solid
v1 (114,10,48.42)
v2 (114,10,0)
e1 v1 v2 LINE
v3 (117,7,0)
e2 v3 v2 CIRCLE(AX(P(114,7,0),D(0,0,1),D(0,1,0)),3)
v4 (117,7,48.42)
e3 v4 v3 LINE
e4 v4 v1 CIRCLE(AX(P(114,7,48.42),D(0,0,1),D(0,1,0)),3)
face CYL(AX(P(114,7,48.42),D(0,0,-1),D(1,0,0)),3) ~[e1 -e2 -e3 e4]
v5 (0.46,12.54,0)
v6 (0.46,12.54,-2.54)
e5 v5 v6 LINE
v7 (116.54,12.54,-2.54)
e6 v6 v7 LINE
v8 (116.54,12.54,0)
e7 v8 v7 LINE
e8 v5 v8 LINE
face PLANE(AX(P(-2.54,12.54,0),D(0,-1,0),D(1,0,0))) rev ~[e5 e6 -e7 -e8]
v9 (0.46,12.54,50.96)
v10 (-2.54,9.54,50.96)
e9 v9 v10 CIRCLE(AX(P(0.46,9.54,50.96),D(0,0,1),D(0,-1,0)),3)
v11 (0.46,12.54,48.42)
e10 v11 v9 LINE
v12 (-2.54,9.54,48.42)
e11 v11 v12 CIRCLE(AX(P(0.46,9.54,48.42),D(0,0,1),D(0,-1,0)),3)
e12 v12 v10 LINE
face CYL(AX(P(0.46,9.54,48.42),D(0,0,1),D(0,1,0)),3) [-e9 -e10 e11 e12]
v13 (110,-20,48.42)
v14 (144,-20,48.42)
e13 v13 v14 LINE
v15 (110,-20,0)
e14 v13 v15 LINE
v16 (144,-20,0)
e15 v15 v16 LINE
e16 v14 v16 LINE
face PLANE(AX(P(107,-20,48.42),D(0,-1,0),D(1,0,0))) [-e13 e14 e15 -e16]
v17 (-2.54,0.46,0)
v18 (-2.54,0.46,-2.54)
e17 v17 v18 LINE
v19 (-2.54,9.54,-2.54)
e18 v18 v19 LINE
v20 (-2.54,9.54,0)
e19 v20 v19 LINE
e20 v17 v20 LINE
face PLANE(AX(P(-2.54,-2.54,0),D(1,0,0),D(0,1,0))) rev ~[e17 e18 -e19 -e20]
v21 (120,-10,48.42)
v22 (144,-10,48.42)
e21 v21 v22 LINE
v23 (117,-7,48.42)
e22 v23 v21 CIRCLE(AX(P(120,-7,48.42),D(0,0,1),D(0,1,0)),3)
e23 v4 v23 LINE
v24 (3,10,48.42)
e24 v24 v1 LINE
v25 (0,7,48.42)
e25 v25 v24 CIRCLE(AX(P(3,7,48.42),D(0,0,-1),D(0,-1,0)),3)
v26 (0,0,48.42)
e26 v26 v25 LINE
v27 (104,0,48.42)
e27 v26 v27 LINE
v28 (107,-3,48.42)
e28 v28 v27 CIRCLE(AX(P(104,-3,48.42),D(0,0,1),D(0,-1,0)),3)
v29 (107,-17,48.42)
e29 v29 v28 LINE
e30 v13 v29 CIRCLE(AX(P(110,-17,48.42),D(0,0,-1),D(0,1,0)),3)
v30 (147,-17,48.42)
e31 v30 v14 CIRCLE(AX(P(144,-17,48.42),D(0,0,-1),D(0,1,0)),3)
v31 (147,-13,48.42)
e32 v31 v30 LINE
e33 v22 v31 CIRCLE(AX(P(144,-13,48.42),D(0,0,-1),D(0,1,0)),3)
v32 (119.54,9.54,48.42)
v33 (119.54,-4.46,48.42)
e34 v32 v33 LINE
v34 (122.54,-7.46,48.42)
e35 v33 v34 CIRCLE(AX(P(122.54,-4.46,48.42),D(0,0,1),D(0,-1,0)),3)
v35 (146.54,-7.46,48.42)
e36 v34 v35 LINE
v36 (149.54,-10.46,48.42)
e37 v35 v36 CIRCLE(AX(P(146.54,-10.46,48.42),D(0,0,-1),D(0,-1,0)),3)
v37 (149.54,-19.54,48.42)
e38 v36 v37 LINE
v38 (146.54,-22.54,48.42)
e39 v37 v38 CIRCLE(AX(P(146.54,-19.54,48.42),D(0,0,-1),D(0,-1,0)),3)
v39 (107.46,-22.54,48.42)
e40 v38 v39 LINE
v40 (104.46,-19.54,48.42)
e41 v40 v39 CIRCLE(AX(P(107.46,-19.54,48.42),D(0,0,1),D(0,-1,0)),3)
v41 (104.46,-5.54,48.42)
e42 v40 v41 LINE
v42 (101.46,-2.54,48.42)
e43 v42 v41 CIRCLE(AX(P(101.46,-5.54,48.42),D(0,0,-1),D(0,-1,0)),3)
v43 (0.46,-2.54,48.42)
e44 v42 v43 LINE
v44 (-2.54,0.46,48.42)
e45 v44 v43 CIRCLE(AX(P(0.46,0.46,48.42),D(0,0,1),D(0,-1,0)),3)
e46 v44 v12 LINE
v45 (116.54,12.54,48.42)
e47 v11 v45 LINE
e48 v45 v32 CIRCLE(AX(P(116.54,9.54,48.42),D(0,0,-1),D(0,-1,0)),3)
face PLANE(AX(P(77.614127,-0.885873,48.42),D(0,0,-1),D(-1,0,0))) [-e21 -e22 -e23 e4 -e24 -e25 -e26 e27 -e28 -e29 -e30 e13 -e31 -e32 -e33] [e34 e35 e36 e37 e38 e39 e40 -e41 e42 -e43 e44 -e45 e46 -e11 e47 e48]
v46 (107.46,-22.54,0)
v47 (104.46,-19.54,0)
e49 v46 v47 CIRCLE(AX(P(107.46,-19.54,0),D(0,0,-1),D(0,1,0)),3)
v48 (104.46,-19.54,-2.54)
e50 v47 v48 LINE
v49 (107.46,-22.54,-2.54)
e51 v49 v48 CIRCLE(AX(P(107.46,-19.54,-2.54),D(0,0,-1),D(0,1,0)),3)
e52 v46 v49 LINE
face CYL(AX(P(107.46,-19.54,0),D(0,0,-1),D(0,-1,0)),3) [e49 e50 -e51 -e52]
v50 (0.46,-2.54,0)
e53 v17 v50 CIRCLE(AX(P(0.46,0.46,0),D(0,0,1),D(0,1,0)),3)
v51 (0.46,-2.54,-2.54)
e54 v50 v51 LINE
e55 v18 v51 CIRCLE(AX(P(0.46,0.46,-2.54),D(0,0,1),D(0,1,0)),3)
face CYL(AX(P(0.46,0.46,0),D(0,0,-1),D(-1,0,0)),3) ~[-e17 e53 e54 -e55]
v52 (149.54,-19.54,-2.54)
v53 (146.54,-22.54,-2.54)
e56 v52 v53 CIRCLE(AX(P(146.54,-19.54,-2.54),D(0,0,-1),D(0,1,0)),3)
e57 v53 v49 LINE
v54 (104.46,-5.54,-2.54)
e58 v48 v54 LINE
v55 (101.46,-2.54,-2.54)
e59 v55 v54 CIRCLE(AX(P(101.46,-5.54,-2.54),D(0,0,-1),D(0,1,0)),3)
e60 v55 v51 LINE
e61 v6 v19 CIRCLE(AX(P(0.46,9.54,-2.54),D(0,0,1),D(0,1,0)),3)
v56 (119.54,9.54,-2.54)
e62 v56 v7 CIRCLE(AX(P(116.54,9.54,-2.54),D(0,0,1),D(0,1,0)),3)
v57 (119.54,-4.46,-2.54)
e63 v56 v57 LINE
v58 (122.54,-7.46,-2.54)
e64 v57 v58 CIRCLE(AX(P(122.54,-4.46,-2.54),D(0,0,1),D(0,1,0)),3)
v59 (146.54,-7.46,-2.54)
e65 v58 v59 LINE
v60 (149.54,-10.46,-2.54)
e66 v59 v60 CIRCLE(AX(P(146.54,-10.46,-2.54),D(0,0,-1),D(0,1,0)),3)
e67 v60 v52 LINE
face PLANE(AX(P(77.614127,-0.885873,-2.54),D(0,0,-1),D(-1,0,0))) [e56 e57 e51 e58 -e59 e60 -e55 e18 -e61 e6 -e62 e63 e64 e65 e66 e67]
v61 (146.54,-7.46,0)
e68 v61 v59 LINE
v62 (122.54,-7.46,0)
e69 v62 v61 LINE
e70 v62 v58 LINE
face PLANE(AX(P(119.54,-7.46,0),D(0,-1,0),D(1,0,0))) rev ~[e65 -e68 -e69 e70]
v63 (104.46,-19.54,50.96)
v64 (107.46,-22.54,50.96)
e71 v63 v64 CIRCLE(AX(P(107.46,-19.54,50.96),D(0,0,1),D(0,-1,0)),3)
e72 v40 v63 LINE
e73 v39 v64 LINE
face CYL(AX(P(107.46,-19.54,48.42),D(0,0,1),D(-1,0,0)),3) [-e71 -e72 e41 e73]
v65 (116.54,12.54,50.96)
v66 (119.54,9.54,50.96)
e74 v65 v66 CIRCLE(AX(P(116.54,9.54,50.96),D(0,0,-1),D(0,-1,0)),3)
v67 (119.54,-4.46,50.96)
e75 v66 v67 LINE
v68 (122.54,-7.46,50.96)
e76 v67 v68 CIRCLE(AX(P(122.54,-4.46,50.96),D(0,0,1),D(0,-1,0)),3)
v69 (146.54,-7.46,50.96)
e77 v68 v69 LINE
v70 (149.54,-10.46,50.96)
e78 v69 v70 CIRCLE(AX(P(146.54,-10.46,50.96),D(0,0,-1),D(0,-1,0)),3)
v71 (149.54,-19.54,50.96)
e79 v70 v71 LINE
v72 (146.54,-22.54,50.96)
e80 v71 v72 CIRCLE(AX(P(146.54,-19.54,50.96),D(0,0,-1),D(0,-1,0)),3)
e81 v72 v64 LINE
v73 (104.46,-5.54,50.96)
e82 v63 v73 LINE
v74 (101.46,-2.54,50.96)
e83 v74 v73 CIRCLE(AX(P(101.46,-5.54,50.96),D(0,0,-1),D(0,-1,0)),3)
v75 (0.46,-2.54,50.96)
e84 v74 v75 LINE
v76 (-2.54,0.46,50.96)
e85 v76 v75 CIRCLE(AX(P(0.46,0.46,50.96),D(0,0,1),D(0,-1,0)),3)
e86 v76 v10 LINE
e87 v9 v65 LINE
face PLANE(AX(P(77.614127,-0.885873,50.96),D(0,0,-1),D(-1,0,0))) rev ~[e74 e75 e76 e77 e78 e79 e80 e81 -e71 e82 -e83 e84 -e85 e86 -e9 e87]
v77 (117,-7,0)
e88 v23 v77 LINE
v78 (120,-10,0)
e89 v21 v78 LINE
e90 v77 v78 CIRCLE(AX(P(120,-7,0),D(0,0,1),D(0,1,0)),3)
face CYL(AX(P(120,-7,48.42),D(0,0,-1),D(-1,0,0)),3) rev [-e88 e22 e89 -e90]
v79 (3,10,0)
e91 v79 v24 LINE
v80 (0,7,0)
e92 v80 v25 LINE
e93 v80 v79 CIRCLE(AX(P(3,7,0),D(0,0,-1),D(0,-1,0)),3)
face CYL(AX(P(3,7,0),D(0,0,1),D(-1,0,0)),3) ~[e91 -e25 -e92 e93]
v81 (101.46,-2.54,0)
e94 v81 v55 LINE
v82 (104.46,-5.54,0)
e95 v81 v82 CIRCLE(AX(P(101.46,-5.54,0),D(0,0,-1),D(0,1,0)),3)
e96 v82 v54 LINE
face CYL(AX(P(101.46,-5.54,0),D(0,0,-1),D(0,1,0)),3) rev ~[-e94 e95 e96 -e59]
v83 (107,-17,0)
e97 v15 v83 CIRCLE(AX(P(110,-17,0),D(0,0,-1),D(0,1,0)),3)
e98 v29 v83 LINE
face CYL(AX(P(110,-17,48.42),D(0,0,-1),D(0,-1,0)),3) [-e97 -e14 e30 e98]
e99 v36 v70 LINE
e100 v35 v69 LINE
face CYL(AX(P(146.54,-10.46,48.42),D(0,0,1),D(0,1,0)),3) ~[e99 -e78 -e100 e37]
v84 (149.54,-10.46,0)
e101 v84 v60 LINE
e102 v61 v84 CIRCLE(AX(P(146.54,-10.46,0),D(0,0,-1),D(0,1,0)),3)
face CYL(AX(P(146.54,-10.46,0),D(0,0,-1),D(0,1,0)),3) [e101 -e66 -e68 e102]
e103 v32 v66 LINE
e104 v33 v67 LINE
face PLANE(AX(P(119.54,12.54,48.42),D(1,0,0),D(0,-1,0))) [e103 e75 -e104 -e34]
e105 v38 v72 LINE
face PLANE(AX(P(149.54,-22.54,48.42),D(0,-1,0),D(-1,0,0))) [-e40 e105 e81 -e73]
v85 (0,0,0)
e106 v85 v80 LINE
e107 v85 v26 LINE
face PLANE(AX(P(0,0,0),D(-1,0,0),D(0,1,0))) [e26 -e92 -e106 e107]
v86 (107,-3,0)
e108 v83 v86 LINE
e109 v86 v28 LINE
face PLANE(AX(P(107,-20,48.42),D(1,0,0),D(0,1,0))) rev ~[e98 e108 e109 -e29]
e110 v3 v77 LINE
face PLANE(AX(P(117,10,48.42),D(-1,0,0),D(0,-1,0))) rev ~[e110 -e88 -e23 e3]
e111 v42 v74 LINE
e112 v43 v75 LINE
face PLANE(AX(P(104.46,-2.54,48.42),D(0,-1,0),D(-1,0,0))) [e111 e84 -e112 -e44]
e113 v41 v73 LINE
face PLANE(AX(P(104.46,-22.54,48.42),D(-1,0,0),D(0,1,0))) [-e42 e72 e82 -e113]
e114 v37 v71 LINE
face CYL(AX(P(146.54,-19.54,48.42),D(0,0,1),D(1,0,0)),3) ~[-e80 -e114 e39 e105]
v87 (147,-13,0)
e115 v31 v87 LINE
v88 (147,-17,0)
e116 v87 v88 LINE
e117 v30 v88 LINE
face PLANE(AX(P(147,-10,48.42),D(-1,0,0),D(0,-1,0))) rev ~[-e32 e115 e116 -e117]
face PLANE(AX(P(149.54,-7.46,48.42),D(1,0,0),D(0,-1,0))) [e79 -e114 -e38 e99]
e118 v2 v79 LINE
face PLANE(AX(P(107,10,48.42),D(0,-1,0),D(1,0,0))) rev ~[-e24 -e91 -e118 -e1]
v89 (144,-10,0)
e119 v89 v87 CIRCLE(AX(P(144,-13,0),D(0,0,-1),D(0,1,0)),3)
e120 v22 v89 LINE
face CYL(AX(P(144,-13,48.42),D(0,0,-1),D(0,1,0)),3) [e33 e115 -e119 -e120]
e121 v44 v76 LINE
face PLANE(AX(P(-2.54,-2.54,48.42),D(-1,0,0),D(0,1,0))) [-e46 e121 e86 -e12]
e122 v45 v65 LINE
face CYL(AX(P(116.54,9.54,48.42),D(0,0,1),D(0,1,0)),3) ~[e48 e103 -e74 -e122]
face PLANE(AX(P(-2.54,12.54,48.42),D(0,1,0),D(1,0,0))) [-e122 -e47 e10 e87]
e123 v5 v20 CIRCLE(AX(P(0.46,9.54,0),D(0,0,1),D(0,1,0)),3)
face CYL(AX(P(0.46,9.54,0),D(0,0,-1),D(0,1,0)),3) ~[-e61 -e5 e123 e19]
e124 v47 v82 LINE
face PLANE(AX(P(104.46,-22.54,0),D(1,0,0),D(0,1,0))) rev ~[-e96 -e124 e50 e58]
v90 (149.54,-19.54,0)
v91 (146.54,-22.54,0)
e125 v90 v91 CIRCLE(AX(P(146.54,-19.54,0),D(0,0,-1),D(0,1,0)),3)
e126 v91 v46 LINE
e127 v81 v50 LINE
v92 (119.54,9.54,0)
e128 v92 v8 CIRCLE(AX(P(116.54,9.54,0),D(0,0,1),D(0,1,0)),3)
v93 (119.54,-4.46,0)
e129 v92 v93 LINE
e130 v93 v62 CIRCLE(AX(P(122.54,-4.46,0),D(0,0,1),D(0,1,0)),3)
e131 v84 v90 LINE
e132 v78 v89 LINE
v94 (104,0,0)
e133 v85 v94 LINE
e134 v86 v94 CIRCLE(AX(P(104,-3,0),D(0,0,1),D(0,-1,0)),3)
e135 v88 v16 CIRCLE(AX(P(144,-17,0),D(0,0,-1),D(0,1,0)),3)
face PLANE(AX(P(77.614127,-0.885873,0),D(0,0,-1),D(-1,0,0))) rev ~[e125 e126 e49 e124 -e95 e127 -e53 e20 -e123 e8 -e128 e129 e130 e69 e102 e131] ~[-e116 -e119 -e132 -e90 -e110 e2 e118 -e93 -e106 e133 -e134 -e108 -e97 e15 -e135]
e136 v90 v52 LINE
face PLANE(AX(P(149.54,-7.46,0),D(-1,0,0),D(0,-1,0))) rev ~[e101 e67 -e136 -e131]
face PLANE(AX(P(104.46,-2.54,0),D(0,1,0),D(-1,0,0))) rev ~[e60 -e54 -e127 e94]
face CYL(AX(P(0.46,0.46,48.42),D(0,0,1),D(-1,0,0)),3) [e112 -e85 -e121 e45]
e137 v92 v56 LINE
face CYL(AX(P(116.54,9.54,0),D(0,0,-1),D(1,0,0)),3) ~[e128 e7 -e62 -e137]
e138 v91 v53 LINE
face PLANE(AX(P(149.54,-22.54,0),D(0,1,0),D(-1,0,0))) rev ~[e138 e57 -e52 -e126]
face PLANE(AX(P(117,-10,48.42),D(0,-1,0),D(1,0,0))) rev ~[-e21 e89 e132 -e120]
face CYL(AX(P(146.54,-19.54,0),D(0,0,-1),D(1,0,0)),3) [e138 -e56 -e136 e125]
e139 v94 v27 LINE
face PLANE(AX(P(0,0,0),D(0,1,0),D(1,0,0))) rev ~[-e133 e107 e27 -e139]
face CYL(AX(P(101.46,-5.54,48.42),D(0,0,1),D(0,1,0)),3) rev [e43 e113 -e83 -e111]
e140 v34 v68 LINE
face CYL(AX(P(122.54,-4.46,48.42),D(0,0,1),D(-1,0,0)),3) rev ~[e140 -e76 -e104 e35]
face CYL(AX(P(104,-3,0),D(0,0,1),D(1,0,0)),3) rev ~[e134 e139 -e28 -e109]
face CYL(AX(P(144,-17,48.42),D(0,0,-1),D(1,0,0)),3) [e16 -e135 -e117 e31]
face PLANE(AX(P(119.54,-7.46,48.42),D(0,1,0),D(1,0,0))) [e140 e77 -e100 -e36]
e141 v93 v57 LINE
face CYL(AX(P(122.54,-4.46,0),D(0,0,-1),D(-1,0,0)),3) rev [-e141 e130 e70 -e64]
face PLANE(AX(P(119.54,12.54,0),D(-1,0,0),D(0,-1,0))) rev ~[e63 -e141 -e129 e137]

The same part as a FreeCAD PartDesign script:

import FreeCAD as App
import Part
import Sketcher
from FreeCAD import Vector


def edges_at(feature, points):
    """Names of the edges that pass closest to the given points."""
    edges = feature.Shape.Edges
    near = lambda p: min(range(len(edges)), key=lambda i: edges[i].distToShape(Part.Vertex(*p))[0])
    return sorted({f"Edge{near(p) + 1}" for p in points})

doc = App.newDocument("Part")
body = doc.addObject("PartDesign::Body", "Body")

# Sketch on XY plane
sketch1 = doc.addObject("Sketcher::SketchObject", "Sketch")
body.addObject(sketch1)
sketch1.AttachmentSupport = (doc.XY_Plane, [""])
sketch1.MapMode = "FlatFace"
sketch1.addGeometry([
    Part.LineSegment(Vector(0, 10, 0), Vector(0, 0, 0)),
    Part.LineSegment(Vector(0, 0, 0), Vector(107, 0, 0)),
    Part.LineSegment(Vector(107, 0, 0), Vector(107, 10, 0)),
    Part.LineSegment(Vector(107, 10, 0), Vector(0, 10, 0)),
], False)
sketch1.addConstraint([
    Sketcher.Constraint("Coincident", 0, 2, 1, 1),
    Sketcher.Constraint("Coincident", 1, 2, 2, 1),
    Sketcher.Constraint("Coincident", 2, 2, 3, 1),
    Sketcher.Constraint("Coincident", 3, 2, 0, 1),
    Sketcher.Constraint("Vertical", 0),
    Sketcher.Constraint("Horizontal", 1),
    Sketcher.Constraint("Vertical", 2),
    Sketcher.Constraint("Horizontal", 3),
    Sketcher.Constraint("Coincident", 0, 2, -1, 1),
    Sketcher.Constraint("DistanceX", 1, 1, 1, 2, 107.0),
    Sketcher.Constraint("DistanceY", 0, 2, 0, 1, 10.0),
])
pad1 = doc.addObject("PartDesign::Pad", "Pad")
body.addObject(pad1)
pad1.Profile = sketch1
pad1.Length = 48.42

# Sketch on XY plane
sketch2 = doc.addObject("Sketcher::SketchObject", "Sketch001")
body.addObject(sketch2)
sketch2.AttachmentSupport = (doc.XY_Plane, [""])
sketch2.MapMode = "FlatFace"
sketch2.AttachmentOffset = App.Placement(Vector(0, 0, 48.42), App.Rotation())
sketch2.addGeometry([
    Part.LineSegment(Vector(117, 10, 0), Vector(107, 10, 0)),  # 0
    Part.LineSegment(Vector(107, 10, 0), Vector(107, -20, 0)),  # 1
    Part.LineSegment(Vector(107, -20, 0), Vector(147, -20, 0)),  # 2
    Part.LineSegment(Vector(147, -20, 0), Vector(147, -10, 0)),  # 3
    Part.LineSegment(Vector(147, -10, 0), Vector(117, -10, 0)),  # 4
    Part.LineSegment(Vector(117, -10, 0), Vector(117, 10, 0)),  # 5
], False)
sketch2.addConstraint([
    Sketcher.Constraint("Coincident", 0, 2, 1, 1),
    Sketcher.Constraint("Coincident", 1, 2, 2, 1),
    Sketcher.Constraint("Coincident", 2, 2, 3, 1),
    Sketcher.Constraint("Coincident", 3, 2, 4, 1),
    Sketcher.Constraint("Coincident", 4, 2, 5, 1),
    Sketcher.Constraint("Coincident", 5, 2, 0, 1),
    Sketcher.Constraint("Horizontal", 0),
    Sketcher.Constraint("Vertical", 1),
    Sketcher.Constraint("Horizontal", 2),
    Sketcher.Constraint("Vertical", 3),
    Sketcher.Constraint("Horizontal", 4),
    Sketcher.Constraint("Vertical", 5),
    Sketcher.Constraint("Equal", 4, 1),
    Sketcher.Constraint("Equal", 0, 3),
    Sketcher.Constraint("DistanceX", 0, 2, 0, 1, 10.0),
    Sketcher.Constraint("DistanceX", 2, 1, 2, 2, 40.0),
    Sketcher.Constraint("DistanceX", -1, 1, 0, 2, 107.0),
    Sketcher.Constraint("DistanceY", -1, 1, 0, 2, 10.0),
])
pad2 = doc.addObject("PartDesign::Pad", "Pad001")
body.addObject(pad2)
pad2.Profile = sketch2
pad2.Length = 48.42
pad2.Reversed = True

# Sketch on XY plane
sketch3 = doc.addObject("Sketcher::SketchObject", "Sketch002")
body.addObject(sketch3)
sketch3.AttachmentSupport = (doc.XY_Plane, [""])
sketch3.MapMode = "FlatFace"
sketch3.AttachmentOffset = App.Placement(Vector(0, 0, 48.42), App.Rotation())
sketch3.addGeometry([
    Part.LineSegment(Vector(120, 13, 0), Vector(-3, 13, 0)),  # 0
    Part.LineSegment(Vector(-3, 13, 0), Vector(-3, -3, 0)),  # 1
    Part.LineSegment(Vector(-3, -3, 0), Vector(104, -3, 0)),  # 2
    Part.LineSegment(Vector(104, -3, 0), Vector(104, -23, 0)),  # 3
    Part.LineSegment(Vector(104, -23, 0), Vector(150, -23, 0)),  # 4
    Part.LineSegment(Vector(150, -23, 0), Vector(150, -7, 0)),  # 5
    Part.LineSegment(Vector(150, -7, 0), Vector(120, -7, 0)),  # 6
    Part.LineSegment(Vector(120, -7, 0), Vector(120, 13, 0)),  # 7
], False)
sketch3.addConstraint([
    Sketcher.Constraint("Coincident", 0, 2, 1, 1),
    Sketcher.Constraint("Coincident", 1, 2, 2, 1),
    Sketcher.Constraint("Coincident", 2, 2, 3, 1),
    Sketcher.Constraint("Coincident", 3, 2, 4, 1),
    Sketcher.Constraint("Coincident", 4, 2, 5, 1),
    Sketcher.Constraint("Coincident", 5, 2, 6, 1),
    Sketcher.Constraint("Coincident", 6, 2, 7, 1),
    Sketcher.Constraint("Coincident", 7, 2, 0, 1),
    Sketcher.Constraint("Horizontal", 0),
    Sketcher.Constraint("Vertical", 1),
    Sketcher.Constraint("Horizontal", 2),
    Sketcher.Constraint("Vertical", 3),
    Sketcher.Constraint("Horizontal", 4),
    Sketcher.Constraint("Vertical", 5),
    Sketcher.Constraint("Horizontal", 6),
    Sketcher.Constraint("Vertical", 7),
    Sketcher.Constraint("Equal", 1, 5),
    Sketcher.Constraint("DistanceX", 2, 1, 2, 2, 107.0),
    Sketcher.Constraint("DistanceX", 6, 2, 6, 1, 30.0),
    Sketcher.Constraint("DistanceY", 3, 2, 3, 1, 20.0),
    Sketcher.Constraint("DistanceX", 0, 2, 0, 1, 122.08),
    Sketcher.Constraint("DistanceY", 1, 2, 1, 1, 15.08),
    Sketcher.Constraint("DistanceX", 0, 2, -1, 1, 2.54),
    Sketcher.Constraint("DistanceY", -1, 1, 0, 2, 12.54),
])
pad3 = doc.addObject("PartDesign::Pad", "Pad002")
body.addObject(pad3)
pad3.Profile = sketch3
pad3.Length = 2.54

# Sketch on XY plane
sketch4 = doc.addObject("Sketcher::SketchObject", "Sketch003")
body.addObject(sketch4)
sketch4.AttachmentSupport = (doc.XY_Plane, [""])
sketch4.MapMode = "FlatFace"
sketch4.addGeometry([
    Part.LineSegment(Vector(120, 13, 0), Vector(120, -7, 0)),  # 0
    Part.LineSegment(Vector(120, -7, 0), Vector(150, -7, 0)),  # 1
    Part.LineSegment(Vector(150, -7, 0), Vector(150, -23, 0)),  # 2
    Part.LineSegment(Vector(150, -23, 0), Vector(104, -23, 0)),  # 3
    Part.LineSegment(Vector(104, -23, 0), Vector(104, -3, 0)),  # 4
    Part.LineSegment(Vector(104, -3, 0), Vector(-3, -3, 0)),  # 5
    Part.LineSegment(Vector(-3, -3, 0), Vector(-3, 13, 0)),  # 6
    Part.LineSegment(Vector(-3, 13, 0), Vector(120, 13, 0)),  # 7
], False)
sketch4.addConstraint([
    Sketcher.Constraint("Coincident", 0, 2, 1, 1),
    Sketcher.Constraint("Coincident", 1, 2, 2, 1),
    Sketcher.Constraint("Coincident", 2, 2, 3, 1),
    Sketcher.Constraint("Coincident", 3, 2, 4, 1),
    Sketcher.Constraint("Coincident", 4, 2, 5, 1),
    Sketcher.Constraint("Coincident", 5, 2, 6, 1),
    Sketcher.Constraint("Coincident", 6, 2, 7, 1),
    Sketcher.Constraint("Coincident", 7, 2, 0, 1),
    Sketcher.Constraint("Vertical", 0),
    Sketcher.Constraint("Horizontal", 1),
    Sketcher.Constraint("Vertical", 2),
    Sketcher.Constraint("Horizontal", 3),
    Sketcher.Constraint("Vertical", 4),
    Sketcher.Constraint("Horizontal", 5),
    Sketcher.Constraint("Vertical", 6),
    Sketcher.Constraint("Horizontal", 7),
    Sketcher.Constraint("Equal", 0, 4),
    Sketcher.Constraint("DistanceX", 1, 1, 1, 2, 30.0),
    Sketcher.Constraint("DistanceX", 5, 2, 5, 1, 107.0),
    Sketcher.Constraint("DistanceY", 0, 2, 0, 1, 20.0),
    Sketcher.Constraint("DistanceX", 3, 2, 3, 1, 45.08),
    Sketcher.Constraint("DistanceY", 2, 2, 2, 1, 15.08),
    Sketcher.Constraint("DistanceX", -1, 1, 0, 2, 119.54),
    Sketcher.Constraint("DistanceY", 0, 2, -1, 1, 7.46),
])
pad4 = doc.addObject("PartDesign::Pad", "Pad003")
body.addObject(pad4)
pad4.Profile = sketch4
pad4.Length = 2.54
pad4.Reversed = True
doc.recompute()

fillet = doc.addObject("PartDesign::Fillet", "Fillet")
body.addObject(fillet)
fillet.Base = (pad4, edges_at(pad4, [
    (107, -20, 24.21),
    (117, 10, 24.21),
    (117, -10, 24.21),
    (147, -10, 24.21),
    (147, -20, 24.21),
    (-2.54, 12.54, 49.69),
    (-2.54, -2.54, 49.69),
    (104.46, -2.54, 49.69),
    (104.46, -22.54, 49.69),
    (149.54, -22.54, 49.69),
    (149.54, -7.46, 49.69),
    (119.54, -7.46, 49.69),
    (119.54, 12.54, 49.69),
    (149.54, -7.46, -1.27),
    (149.54, -22.54, -1.27),
    (104.46, -22.54, -1.27),
    (104.46, -2.54, -1.27),
    (-2.54, -2.54, -1.27),
    (-2.54, 12.54, -1.27),
    (119.54, 12.54, -1.27),
    (119.54, -7.46, -1.27),
    (0, 10, 24.21),
    (107, 0, 24.21),
]))
fillet.Radius = 3

doc.recompute()
